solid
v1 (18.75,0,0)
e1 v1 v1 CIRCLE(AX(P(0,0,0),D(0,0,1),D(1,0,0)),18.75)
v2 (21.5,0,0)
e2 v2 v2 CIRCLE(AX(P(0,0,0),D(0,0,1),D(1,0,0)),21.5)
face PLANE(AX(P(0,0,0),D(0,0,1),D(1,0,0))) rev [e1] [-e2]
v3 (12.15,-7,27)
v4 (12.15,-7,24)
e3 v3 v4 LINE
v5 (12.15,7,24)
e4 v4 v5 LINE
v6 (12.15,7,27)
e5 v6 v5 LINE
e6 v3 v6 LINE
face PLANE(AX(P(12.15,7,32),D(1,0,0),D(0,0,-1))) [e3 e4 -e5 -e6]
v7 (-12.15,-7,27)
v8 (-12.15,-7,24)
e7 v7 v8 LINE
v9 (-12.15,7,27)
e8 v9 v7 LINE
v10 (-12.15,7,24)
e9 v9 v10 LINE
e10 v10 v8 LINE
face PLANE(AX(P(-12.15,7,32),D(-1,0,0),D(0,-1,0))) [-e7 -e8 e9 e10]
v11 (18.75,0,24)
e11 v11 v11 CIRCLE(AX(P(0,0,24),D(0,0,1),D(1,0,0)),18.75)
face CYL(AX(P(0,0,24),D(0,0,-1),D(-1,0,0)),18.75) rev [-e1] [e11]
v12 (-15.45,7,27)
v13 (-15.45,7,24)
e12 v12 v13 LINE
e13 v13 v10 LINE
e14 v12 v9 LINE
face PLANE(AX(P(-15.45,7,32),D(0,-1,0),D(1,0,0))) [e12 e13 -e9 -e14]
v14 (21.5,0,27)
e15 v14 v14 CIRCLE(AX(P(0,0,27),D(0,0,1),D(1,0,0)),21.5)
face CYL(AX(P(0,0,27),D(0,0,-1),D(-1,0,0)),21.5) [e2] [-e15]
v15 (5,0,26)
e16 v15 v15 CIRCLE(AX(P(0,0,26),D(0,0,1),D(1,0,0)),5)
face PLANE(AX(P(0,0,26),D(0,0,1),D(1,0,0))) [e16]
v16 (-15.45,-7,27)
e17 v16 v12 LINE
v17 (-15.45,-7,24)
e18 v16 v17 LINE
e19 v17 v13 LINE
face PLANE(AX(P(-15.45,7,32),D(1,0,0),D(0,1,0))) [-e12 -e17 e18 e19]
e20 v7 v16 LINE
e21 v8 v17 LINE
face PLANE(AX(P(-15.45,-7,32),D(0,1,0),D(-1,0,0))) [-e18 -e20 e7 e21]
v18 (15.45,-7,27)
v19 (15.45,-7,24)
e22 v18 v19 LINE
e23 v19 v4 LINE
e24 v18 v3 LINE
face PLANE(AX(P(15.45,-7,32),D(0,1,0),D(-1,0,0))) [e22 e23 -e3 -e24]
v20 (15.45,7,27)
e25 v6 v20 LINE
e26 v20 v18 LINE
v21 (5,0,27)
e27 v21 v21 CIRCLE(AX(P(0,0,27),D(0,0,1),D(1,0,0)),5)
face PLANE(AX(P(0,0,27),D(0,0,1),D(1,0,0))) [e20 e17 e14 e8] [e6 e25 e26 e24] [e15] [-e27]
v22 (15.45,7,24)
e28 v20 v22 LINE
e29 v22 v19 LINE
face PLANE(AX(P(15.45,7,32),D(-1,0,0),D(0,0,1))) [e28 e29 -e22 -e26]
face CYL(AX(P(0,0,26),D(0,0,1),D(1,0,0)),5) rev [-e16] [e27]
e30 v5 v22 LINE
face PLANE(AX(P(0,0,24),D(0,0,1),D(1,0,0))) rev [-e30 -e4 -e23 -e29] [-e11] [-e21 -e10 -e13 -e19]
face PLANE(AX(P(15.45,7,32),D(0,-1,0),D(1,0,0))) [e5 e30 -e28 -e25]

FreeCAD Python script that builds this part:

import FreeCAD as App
import Part
import Sketcher
Q = App.Units.Quantity

doc = App.newDocument("Part")
body = doc.addObject("PartDesign::Body", "Body")

sketch1 = body.newObject("Sketcher::SketchObject", "Sketch")
sketch1.AttachmentSupport = (doc.getObject("XY_Plane"), [""])
sketch1.MapMode = "FlatFace"
sketch1.addGeometry(Part.Circle(App.Vector(0, 0, 0), App.Vector(0, 0, 1), 22), False)
sketch1.addConstraint([
    Sketcher.Constraint("Coincident", 0, 3, -1, 1),
    Sketcher.Constraint("Diameter", 0, Q("43 mm")),
])
pad1 = body.newObject("PartDesign::Pad", "Pad")
pad1.Profile = sketch1
pad1.Length = 27

sketch2 = body.newObject("Sketcher::SketchObject", "Sketch001")
sketch2.AttachmentSupport = (doc.getObject("XY_Plane"), [""])
sketch2.MapMode = "FlatFace"
sketch2.addGeometry(Part.Circle(App.Vector(0, 0, 0), App.Vector(0, 0, 1), 19), False)
sketch2.addConstraint([
    Sketcher.Constraint("Coincident", 0, 3, -1, 1),
    Sketcher.Constraint("Diameter", 0, Q("37.5 mm")),
])
pocket1 = body.newObject("PartDesign::Pocket", "Pocket")
pocket1.Profile = sketch2
pocket1.Length = 24
pocket1.Reversed = True

sketch3 = body.newObject("Sketcher::SketchObject", "Sketch002")
sketch3.AttachmentSupport = (doc.getObject("XY_Plane"), [""])
sketch3.MapMode = "FlatFace"
sketch3.addGeometry([
    Part.LineSegment(App.Vector(12.2, 7, 0), App.Vector(12.2, -7, 0)),
    Part.LineSegment(App.Vector(12.2, -7, 0), App.Vector(15.4, -7, 0)),
    Part.LineSegment(App.Vector(15.4, -7, 0), App.Vector(15.4, 7, 0)),
    Part.LineSegment(App.Vector(15.4, 7, 0), App.Vector(12.2, 7, 0)),
    Part.LineSegment(App.Vector(-15.4, 7, 0), App.Vector(-15.4, -7, 0)),
    Part.LineSegment(App.Vector(-15.4, -7, 0), App.Vector(-12.2, -7, 0)),
    Part.LineSegment(App.Vector(-12.2, -7, 0), App.Vector(-12.2, 7, 0)),
    Part.LineSegment(App.Vector(-12.2, 7, 0), App.Vector(-15.4, 7, 0)),
], False)
sketch3.addConstraint([
    Sketcher.Constraint("Coincident", 0, 2, 1, 1),
    Sketcher.Constraint("Coincident", 1, 2, 2, 1),
    Sketcher.Constraint("Coincident", 2, 2, 3, 1),
    Sketcher.Constraint("Coincident", 3, 2, 0, 1),
    Sketcher.Constraint("Coincident", 4, 2, 5, 1),
    Sketcher.Constraint("Coincident", 5, 2, 6, 1),
    Sketcher.Constraint("Coincident", 6, 2, 7, 1),
    Sketcher.Constraint("Coincident", 7, 2, 4, 1),
    Sketcher.Constraint("Vertical", 0),
    Sketcher.Constraint("Horizontal", 1),
    Sketcher.Constraint("Vertical", 2),
    Sketcher.Constraint("Horizontal", 3),
    Sketcher.Constraint("Vertical", 4),
    Sketcher.Constraint("Horizontal", 5),
    Sketcher.Constraint("Vertical", 6),
    Sketcher.Constraint("Horizontal", 7),
    Sketcher.Constraint("Symmetric", 2, 2, 4, 2, -1, 1),
    Sketcher.Constraint("Symmetric", 0, 2, 6, 2, -1, 1),
    Sketcher.Constraint("Horizontal", 1, 2, 4, 2),
    Sketcher.Constraint("DistanceY", 0, 2, 0, 1, Q("14 mm")),
    Sketcher.Constraint("DistanceX", 1, 1, 1, 2, Q("3.3 mm")),
    Sketcher.Constraint("DistanceX", 4, 2, 0, 2, Q("27.6 mm")),
])
pocket2 = body.newObject("PartDesign::Pocket", "Pocket001")
pocket2.Profile = sketch3
pocket2.Length = 32
pocket2.Reversed = True

sketch4 = body.newObject("Sketcher::SketchObject", "Sketch003")
sketch4.AttachmentSupport = (doc.getObject("XY_Plane"), [""])
sketch4.MapMode = "FlatFace"
sketch4.AttachmentOffset = App.Placement(App.Vector(0, 0, 27), App.Rotation())
sketch4.addGeometry(Part.Circle(App.Vector(0, 0, 0), App.Vector(0, 0, 1), 5), False)
sketch4.addConstraint([
    Sketcher.Constraint("Coincident", 0, 3, -1, 1),
    Sketcher.Constraint("Diameter", 0, Q("10 mm")),
])
pocket3 = body.newObject("PartDesign::Pocket", "Pocket002")
pocket3.Profile = sketch4
pocket3.Length = 1

doc.recompute()
